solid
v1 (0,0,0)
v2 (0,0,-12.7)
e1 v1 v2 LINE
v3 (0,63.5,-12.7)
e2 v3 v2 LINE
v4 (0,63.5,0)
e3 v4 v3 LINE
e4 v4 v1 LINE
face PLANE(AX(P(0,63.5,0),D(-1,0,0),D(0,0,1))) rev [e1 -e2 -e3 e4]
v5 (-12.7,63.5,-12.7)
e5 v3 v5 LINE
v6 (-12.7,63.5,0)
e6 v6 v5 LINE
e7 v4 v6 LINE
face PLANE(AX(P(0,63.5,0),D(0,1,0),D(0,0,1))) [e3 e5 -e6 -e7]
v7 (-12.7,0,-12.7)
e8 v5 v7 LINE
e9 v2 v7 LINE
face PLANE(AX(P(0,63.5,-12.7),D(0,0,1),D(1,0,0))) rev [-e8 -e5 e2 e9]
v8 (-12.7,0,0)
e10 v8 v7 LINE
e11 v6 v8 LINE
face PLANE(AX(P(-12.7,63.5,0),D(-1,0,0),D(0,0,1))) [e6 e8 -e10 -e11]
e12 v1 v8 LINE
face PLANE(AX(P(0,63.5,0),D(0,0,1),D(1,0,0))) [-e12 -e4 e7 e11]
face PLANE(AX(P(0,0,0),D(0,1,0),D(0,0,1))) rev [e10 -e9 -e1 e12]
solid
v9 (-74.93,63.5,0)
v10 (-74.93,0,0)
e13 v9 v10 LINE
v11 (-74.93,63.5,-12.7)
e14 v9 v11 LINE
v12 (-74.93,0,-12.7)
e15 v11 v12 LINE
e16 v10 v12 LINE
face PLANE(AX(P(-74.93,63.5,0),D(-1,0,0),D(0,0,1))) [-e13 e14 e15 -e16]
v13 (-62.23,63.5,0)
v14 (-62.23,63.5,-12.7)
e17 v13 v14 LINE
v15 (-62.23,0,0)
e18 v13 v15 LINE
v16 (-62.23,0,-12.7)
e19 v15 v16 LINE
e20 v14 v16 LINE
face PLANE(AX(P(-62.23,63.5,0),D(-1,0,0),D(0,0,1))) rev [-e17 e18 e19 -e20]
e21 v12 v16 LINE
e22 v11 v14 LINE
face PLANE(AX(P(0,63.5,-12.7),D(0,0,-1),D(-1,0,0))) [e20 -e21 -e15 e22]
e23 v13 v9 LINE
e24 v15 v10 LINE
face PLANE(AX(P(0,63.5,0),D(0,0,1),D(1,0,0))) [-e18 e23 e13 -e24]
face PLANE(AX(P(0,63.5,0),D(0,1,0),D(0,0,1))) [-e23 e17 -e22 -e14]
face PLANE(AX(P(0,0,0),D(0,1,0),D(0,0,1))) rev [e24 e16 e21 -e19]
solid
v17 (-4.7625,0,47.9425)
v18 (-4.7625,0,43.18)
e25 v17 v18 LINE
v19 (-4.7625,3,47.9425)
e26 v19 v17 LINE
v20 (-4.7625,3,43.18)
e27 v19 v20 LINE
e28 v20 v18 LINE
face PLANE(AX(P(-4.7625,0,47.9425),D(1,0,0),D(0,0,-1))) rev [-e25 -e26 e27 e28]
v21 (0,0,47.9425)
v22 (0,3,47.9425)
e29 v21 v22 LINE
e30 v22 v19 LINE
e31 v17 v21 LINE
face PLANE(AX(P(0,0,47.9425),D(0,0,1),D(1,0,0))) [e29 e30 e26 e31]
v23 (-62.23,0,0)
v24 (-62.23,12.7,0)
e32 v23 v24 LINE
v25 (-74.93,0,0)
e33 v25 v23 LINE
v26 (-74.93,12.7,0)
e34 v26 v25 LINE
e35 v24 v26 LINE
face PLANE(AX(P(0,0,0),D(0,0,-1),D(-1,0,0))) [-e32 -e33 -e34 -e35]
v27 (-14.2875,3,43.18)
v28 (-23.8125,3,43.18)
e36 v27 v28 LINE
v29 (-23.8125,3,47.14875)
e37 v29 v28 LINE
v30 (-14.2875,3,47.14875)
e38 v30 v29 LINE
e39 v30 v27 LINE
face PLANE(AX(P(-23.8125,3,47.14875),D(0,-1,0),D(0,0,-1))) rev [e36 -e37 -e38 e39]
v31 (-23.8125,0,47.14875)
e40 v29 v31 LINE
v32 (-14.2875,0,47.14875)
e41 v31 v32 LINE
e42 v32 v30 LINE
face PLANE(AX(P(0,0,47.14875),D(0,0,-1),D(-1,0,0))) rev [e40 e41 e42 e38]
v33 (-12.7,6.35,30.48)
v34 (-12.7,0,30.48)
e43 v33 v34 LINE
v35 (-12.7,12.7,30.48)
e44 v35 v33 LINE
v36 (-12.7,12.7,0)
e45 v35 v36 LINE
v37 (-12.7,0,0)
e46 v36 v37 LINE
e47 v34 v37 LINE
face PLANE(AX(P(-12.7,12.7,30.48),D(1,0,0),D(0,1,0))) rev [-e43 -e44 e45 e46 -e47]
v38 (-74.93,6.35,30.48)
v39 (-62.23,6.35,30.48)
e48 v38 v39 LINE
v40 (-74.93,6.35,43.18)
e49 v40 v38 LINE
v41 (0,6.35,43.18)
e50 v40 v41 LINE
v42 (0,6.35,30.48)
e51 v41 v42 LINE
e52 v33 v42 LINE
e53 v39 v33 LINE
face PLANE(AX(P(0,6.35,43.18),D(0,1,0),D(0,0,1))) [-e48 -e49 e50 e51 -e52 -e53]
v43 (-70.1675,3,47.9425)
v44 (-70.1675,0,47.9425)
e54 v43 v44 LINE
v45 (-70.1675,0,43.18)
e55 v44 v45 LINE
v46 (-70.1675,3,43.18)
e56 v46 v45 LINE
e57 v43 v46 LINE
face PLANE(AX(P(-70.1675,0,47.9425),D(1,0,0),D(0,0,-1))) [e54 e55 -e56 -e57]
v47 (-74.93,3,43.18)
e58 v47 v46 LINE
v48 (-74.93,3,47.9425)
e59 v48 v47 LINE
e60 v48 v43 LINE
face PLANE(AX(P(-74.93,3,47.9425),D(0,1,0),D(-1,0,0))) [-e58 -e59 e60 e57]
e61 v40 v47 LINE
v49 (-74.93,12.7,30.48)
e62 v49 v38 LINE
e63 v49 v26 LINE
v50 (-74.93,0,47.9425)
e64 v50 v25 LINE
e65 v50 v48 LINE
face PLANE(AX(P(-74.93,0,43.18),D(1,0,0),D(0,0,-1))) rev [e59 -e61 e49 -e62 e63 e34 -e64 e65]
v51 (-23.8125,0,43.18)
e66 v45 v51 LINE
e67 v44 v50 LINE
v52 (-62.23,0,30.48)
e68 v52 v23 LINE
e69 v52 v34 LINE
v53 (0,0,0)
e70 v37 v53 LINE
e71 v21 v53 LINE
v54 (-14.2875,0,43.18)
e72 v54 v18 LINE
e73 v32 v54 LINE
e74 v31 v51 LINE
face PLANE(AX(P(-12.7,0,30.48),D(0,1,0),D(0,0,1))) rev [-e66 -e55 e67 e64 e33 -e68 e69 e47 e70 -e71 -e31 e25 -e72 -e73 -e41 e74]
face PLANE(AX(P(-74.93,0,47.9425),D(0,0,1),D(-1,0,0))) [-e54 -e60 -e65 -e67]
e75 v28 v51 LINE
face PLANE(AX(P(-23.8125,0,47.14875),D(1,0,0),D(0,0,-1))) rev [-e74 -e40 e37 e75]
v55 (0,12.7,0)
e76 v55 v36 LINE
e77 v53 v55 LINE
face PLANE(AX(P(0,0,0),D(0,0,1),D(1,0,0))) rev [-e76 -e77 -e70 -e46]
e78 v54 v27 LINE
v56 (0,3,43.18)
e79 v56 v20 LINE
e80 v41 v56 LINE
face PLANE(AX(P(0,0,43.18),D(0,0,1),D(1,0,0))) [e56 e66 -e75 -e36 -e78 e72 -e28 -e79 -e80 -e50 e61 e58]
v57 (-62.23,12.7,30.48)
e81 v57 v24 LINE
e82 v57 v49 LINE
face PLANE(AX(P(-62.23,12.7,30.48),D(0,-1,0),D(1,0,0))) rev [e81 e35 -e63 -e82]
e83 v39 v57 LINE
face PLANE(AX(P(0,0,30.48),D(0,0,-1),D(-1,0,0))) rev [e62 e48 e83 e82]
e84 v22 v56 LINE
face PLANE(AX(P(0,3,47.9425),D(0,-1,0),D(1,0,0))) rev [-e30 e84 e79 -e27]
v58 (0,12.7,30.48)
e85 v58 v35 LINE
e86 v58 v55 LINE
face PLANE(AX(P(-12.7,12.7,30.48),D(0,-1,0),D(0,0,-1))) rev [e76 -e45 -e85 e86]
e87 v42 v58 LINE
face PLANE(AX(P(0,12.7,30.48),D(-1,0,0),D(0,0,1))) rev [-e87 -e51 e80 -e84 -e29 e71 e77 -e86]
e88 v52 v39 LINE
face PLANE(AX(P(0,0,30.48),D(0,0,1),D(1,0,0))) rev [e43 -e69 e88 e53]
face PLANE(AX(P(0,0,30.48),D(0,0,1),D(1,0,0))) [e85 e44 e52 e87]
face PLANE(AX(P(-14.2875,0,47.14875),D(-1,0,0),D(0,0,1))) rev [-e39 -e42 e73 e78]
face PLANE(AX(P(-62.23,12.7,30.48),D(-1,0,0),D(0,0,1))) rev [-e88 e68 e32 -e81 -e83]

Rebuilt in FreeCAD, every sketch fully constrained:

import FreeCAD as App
import Part
import Sketcher

V = App.Vector
Q = App.Units.Quantity


def add_polygon(sketch, points):
    """Adds a closed chain of lines whose ends are joined by coincident constraints."""
    first, n = sketch.GeometryCount, len(points)
    for a, b in zip(points, points[1:] + points[:1]):
        sketch.addGeometry(Part.LineSegment(App.Vector(*a, 0), App.Vector(*b, 0)), False)
    for i in range(n):
        sketch.addConstraint(Sketcher.Constraint("Coincident", first + i, 2, first + (i + 1) % n, 1))

doc = App.newDocument("Part")
body = doc.addObject("PartDesign::Body", "Body")

# Sketch on XZ plane
sketch1 = body.newObject("Sketcher::SketchObject", "Sketch")
sketch1.AttachmentSupport = (doc.getObject("XZ_Plane"), [""])
sketch1.MapMode = "FlatFace"
add_polygon(sketch1, [(-75, -13), (-75, 0), (-62, 0), (-62, -13)])  # lines 0-3
sketch1.addConstraint([
    Sketcher.Constraint("Vertical", 0),
    Sketcher.Constraint("Horizontal", 1),
    Sketcher.Constraint("Vertical", 2),
    Sketcher.Constraint("Horizontal", 3),
    Sketcher.Constraint("PointOnObject", 0, 2, -1),
    Sketcher.Constraint("Equal", 3, 0),
    Sketcher.Constraint("DistanceX", 1, 1, 1, 2, Q("0.5 in")),
    Sketcher.Constraint("DistanceX", 0, 2, -1, 1, Q("2.95 in")),
])
pad1 = body.newObject("PartDesign::Pad", "Pad")
pad1.Profile = sketch1
pad1.Length = Q("2.5 in")
pad1.Reversed = True
body2 = doc.addObject("PartDesign::Body", "Body001")

# Sketch on XZ plane
sketch2 = body2.newObject("Sketcher::SketchObject", "Sketch001")
sketch2.AttachmentSupport = (doc.getObject("XZ_Plane001"), [""])
sketch2.MapMode = "FlatFace"
add_polygon(sketch2, [(-13, -13), (-13, 0), (0, 0), (0, -13)])  # lines 0-3
sketch2.addConstraint([
    Sketcher.Constraint("Vertical", 0),
    Sketcher.Constraint("Horizontal", 1),
    Sketcher.Constraint("Vertical", 2),
    Sketcher.Constraint("Horizontal", 3),
    Sketcher.Constraint("Coincident", 1, 2, -1, 1),
    Sketcher.Constraint("Equal", 3, 0),
    Sketcher.Constraint("DistanceX", 1, 1, 1, 2, Q("0.5 in")),
])
pad2 = body2.newObject("PartDesign::Pad", "Pad001")
pad2.Profile = sketch2
pad2.Length = Q("2.5 in")
pad2.Reversed = True
body3 = doc.addObject("PartDesign::Body", "Body002")

# Sketch on XY plane
sketch3 = body3.newObject("Sketcher::SketchObject", "Sketch002")
sketch3.AttachmentSupport = (doc.getObject("XY_Plane002"), [""])
sketch3.MapMode = "FlatFace"
add_polygon(sketch3, [(-75, 13), (-75, 0), (-62, 0), (-62, 13)])  # lines 0-3
sketch3.addConstraint([
    Sketcher.Constraint("Vertical", 0),
    Sketcher.Constraint("Horizontal", 1),
    Sketcher.Constraint("Vertical", 2),
    Sketcher.Constraint("Horizontal", 3),
    Sketcher.Constraint("PointOnObject", 0, 2, -1),
    Sketcher.Constraint("Equal", 3, 0),
    Sketcher.Constraint("DistanceX", 1, 1, 1, 2, Q("0.5 in")),
    Sketcher.Constraint("DistanceX", 0, 2, -1, 1, Q("2.95 in")),
])
pad3 = body3.newObject("PartDesign::Pad", "Pad002")
pad3.Profile = sketch3
pad3.Length = Q("1.2 in")
body4 = doc.addObject("PartDesign::Body", "Body003")

# Sketch on XY plane
sketch4 = body4.newObject("Sketcher::SketchObject", "Sketch003")
sketch4.AttachmentSupport = (doc.getObject("XY_Plane003"), [""])
sketch4.MapMode = "FlatFace"
add_polygon(sketch4, [(-13, 13), (-13, 0), (0, 0), (0, 13)])  # lines 0-3
sketch4.addConstraint([
    Sketcher.Constraint("Vertical", 0),
    Sketcher.Constraint("Horizontal", 1),
    Sketcher.Constraint("Vertical", 2),
    Sketcher.Constraint("Horizontal", 3),
    Sketcher.Constraint("Coincident", 1, 2, -1, 1),
    Sketcher.Constraint("Equal", 3, 0),
    Sketcher.Constraint("DistanceX", 1, 1, 1, 2, Q("0.5 in")),
])
pad4 = body4.newObject("PartDesign::Pad", "Pad003")
pad4.Profile = sketch4
pad4.Length = Q("1.2 in")
body3.AllowCompound = True
doc.recompute()

boolean = body3.newObject("PartDesign::Boolean", "Boolean")
boolean.Type = "Fuse"
boolean.addObjects([body4])

# Sketch on XY plane
sketch5 = body3.newObject("Sketcher::SketchObject", "Sketch004")
sketch5.AttachmentSupport = (doc.getObject("XY_Plane002"), [""])
sketch5.MapMode = "FlatFace"
sketch5.AttachmentOffset = App.Placement(V(0, 0, 1.2 * 25.4), App.Rotation())
add_polygon(sketch5, [(-75, 6), (-75, 0), (0, 0), (0, 6)])  # lines 0-3
sketch5.addConstraint([
    Sketcher.Constraint("Vertical", 0),
    Sketcher.Constraint("Horizontal", 1),
    Sketcher.Constraint("Vertical", 2),
    Sketcher.Constraint("Horizontal", 3),
    Sketcher.Constraint("Coincident", 1, 2, -1, 1),
    Sketcher.Constraint("DistanceX", 1, 1, 1, 2, Q("2.95 in")),
    Sketcher.Constraint("DistanceY", 0, 2, 0, 1, Q("0.25 in")),
])
pad5 = body3.newObject("PartDesign::Pad", "Pad004")
pad5.Profile = sketch5
pad5.Length = Q("0.5 in")

# Sketch on XY plane
sketch6 = body3.newObject("Sketcher::SketchObject", "Sketch005")
sketch6.AttachmentSupport = (doc.getObject("XY_Plane002"), [""])
sketch6.MapMode = "FlatFace"
sketch6.AttachmentOffset = App.Placement(V(0, 0, 1.7 * 25.4), App.Rotation())
add_polygon(sketch6, [(-23.8, 3), (-23.8, 0), (-14.3, 0), (-14.3, 3)])  # lines 0-3
sketch6.addConstraint([
    Sketcher.Constraint("Vertical", 0),
    Sketcher.Constraint("Horizontal", 1),
    Sketcher.Constraint("Vertical", 2),
    Sketcher.Constraint("Horizontal", 3),
    Sketcher.Constraint("PointOnObject", 0, 2, -1),
    Sketcher.Constraint("DistanceX", 1, 1, 1, 2, Q("0.375 in")),
    Sketcher.Constraint("DistanceX", 0, 2, -1, 1, Q("0.9375 in")),
    Sketcher.Constraint("DistanceY", 0, 2, 0, 1, Q("3 mm")),
])
pad6 = body3.newObject("PartDesign::Pad", "Pad005")
pad6.Profile = sketch6
pad6.Length = Q("0.15625 in")

# Sketch on XY plane
sketch7 = body3.newObject("Sketcher::SketchObject", "Sketch006")
sketch7.AttachmentSupport = (doc.getObject("XY_Plane002"), [""])
sketch7.MapMode = "FlatFace"
sketch7.AttachmentOffset = App.Placement(V(0, 0, 1.7 * 25.4), App.Rotation())
add_polygon(sketch7, [(-4.8, 3), (-4.8, 0), (0, 0), (0, 3)])  # lines 0-3
sketch7.addConstraint([
    Sketcher.Constraint("Vertical", 0),
    Sketcher.Constraint("Horizontal", 1),
    Sketcher.Constraint("Vertical", 2),
    Sketcher.Constraint("Horizontal", 3),
    Sketcher.Constraint("Coincident", 1, 2, -1, 1),
    Sketcher.Constraint("DistanceX", 1, 1, 1, 2, Q("0.1875 in")),
    Sketcher.Constraint("DistanceY", 0, 2, 0, 1, Q("3 mm")),
])
pad7 = body3.newObject("PartDesign::Pad", "Pad006")
pad7.Profile = sketch7
pad7.Length = Q("0.1875 in")
doc.recompute()

datumplane = body3.newObject("PartDesign::Plane", "DatumPlane")
datumplane.AttachmentSupport = (doc.getObject("YZ_Plane002"), [""])
datumplane.MapMode = "FlatFace"
datumplane.AttachmentOffset = App.Placement(V(0, 0, -1.475 * 25.4), App.Rotation())
mirrored = body3.newObject("PartDesign::Mirrored", "Mirrored")
mirrored.Originals = [pad7]
mirrored.MirrorPlane = (datumplane, [""])
body3.Tip = mirrored

doc.recompute()
